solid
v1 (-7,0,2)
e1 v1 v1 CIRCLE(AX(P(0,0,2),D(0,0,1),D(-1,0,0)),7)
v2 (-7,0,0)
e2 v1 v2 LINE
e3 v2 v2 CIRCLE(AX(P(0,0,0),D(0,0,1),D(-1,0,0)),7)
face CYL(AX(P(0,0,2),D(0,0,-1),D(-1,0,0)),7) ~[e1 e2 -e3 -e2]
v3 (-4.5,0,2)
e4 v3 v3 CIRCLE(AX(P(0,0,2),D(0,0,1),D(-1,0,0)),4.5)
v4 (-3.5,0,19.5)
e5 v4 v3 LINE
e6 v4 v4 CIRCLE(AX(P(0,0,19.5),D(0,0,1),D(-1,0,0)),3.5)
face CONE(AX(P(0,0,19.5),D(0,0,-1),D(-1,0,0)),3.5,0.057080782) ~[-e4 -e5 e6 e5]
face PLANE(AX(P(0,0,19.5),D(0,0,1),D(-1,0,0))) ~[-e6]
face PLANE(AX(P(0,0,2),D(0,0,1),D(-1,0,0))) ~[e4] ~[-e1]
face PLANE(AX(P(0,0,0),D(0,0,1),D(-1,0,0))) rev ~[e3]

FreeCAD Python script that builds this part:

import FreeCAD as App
import Part
import Sketcher
from FreeCAD import Vector
Q = App.Units.Quantity

doc = App.newDocument("Part")
body = doc.addObject("PartDesign::Body", "Body")

# Sketch on XZ plane
sketch1 = body.newObject("Sketcher::SketchObject", "Sketch")
sketch1.AttachmentSupport = (doc.getObject("XZ_Plane"), [""])
sketch1.MapMode = "FlatFace"
sketch1.addGeometry(Part.LineSegment(Vector(-7, 2, 0), Vector(-7, 0, 0)), False)
sketch1.addGeometry(Part.LineSegment(Vector(-7, 0, 0), Vector(0, 0, 0)), False)
sketch1.addGeometry(Part.LineSegment(Vector(0, 0, 0), Vector(0, 19.5, 0)), False)
sketch1.addGeometry(Part.LineSegment(Vector(0, 19.5, 0), Vector(-3.5, 19.5, 0)), False)
sketch1.addGeometry(Part.LineSegment(Vector(-3.5, 19.5, 0), Vector(-4.5, 2, 0)), False)
sketch1.addGeometry(Part.LineSegment(Vector(-4.5, 2, 0), Vector(-7, 2, 0)), False)
sketch1.addConstraint(Sketcher.Constraint("Coincident", 0, 2, 1, 1))
sketch1.addConstraint(Sketcher.Constraint("Coincident", 1, 2, 2, 1))
sketch1.addConstraint(Sketcher.Constraint("Coincident", 2, 2, 3, 1))
sketch1.addConstraint(Sketcher.Constraint("Coincident", 3, 2, 4, 1))
sketch1.addConstraint(Sketcher.Constraint("Coincident", 4, 2, 5, 1))
sketch1.addConstraint(Sketcher.Constraint("Coincident", 5, 2, 0, 1))
sketch1.addConstraint(Sketcher.Constraint("Vertical", 0))
sketch1.addConstraint(Sketcher.Constraint("Horizontal", 1))
sketch1.addConstraint(Sketcher.Constraint("Vertical", 2))
sketch1.addConstraint(Sketcher.Constraint("Horizontal", 3))
sketch1.addConstraint(Sketcher.Constraint("Horizontal", 5))
sketch1.addConstraint(Sketcher.Constraint("Coincident", 1, 2, -1, 1))
sketch1.addConstraint(Sketcher.Constraint("DistanceX", 1, 1, 1, 2, Q("7 mm")))
sketch1.addConstraint(Sketcher.Constraint("DistanceY", 0, 2, 0, 1, Q("2 mm")))
sketch1.addConstraint(Sketcher.Constraint("DistanceX", 3, 2, 3, 1, Q("3.5 mm")))
sketch1.addConstraint(Sketcher.Constraint("DistanceX", 5, 2, 5, 1, Q("2.5 mm")))
sketch1.addConstraint(Sketcher.Constraint("DistanceY", 2, 1, 2, 2, Q("19.5 mm")))
revolution = body.newObject("PartDesign::Revolution", "Revolution")
revolution.Profile = sketch1
revolution.ReferenceAxis = (sketch1, ["V_Axis"])
revolution.Angle = 360

doc.recompute()
